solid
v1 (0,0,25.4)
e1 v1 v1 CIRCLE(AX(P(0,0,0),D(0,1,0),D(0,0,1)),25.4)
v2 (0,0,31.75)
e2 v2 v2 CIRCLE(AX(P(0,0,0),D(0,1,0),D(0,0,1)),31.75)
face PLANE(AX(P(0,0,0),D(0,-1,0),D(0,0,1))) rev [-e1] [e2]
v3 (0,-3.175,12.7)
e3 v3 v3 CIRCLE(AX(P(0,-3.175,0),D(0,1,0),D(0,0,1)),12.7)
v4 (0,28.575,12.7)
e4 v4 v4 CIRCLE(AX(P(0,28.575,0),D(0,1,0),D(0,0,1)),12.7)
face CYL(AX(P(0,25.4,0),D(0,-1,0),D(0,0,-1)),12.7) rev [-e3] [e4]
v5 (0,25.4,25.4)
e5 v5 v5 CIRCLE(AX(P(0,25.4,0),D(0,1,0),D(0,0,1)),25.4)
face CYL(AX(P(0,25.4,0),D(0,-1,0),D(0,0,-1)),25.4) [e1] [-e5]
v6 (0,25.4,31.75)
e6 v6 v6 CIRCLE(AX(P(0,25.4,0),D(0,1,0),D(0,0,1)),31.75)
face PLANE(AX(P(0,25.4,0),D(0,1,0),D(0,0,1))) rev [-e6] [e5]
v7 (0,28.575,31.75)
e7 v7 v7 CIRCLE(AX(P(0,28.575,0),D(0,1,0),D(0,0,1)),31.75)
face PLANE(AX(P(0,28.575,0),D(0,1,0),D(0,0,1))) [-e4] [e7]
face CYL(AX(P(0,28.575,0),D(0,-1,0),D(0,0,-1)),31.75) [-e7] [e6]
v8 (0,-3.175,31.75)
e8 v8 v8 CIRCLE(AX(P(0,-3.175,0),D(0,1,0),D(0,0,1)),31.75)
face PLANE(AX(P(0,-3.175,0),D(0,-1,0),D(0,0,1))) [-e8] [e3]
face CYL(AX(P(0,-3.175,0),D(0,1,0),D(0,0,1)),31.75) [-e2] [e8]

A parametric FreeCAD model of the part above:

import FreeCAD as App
import Part
import Sketcher
from FreeCAD import Vector
Q = App.Units.Quantity

doc = App.newDocument("Part")
body = doc.addObject("PartDesign::Body", "Body")

# Sketch on XZ plane
sketch1 = body.newObject("Sketcher::SketchObject", "Sketch")
sketch1.AttachmentSupport = (doc.getObject("XZ_Plane"), [""])
sketch1.MapMode = "FlatFace"
sketch1.addGeometry([
    Part.Circle(Vector(0, 0, 0), Vector(0, 0, 1), 25),
    Part.Circle(Vector(0, 0, 0), Vector(0, 0, 1), 13),
], False)
sketch1.addConstraint([
    Sketcher.Constraint("Coincident", 0, 3, -1, 1),
    Sketcher.Constraint("Coincident", 1, 3, -1, 1),
    Sketcher.Constraint("Diameter", 0, Q("2 in")),
    Sketcher.Constraint("Diameter", 1, Q("1 in")),
])
pad1 = body.newObject("PartDesign::Pad", "Pad")
pad1.Profile = sketch1
pad1.Length = Q("1 in")
pad1.Reversed = True

# Sketch on XZ plane
sketch2 = body.newObject("Sketcher::SketchObject", "Sketch001")
sketch2.AttachmentSupport = (doc.getObject("XZ_Plane"), [""])
sketch2.MapMode = "FlatFace"
sketch2.AttachmentOffset = App.Placement(Vector(0, 0, -1 * 25.4), App.Rotation())
sketch2.addGeometry([
    Part.Circle(Vector(0, 0, 0), Vector(0, 0, 1), 32),
    Part.Circle(Vector(0, 0, 0), Vector(0, 0, 1), 13),
], False)
sketch2.addConstraint([
    Sketcher.Constraint("Coincident", 0, 3, -1, 1),
    Sketcher.Constraint("Coincident", 1, 3, -1, 1),
    Sketcher.Constraint("Diameter", 1, Q("1 in")),
    Sketcher.Constraint("Diameter", 0, Q("2.5 in")),
])
pad2 = body.newObject("PartDesign::Pad", "Pad001")
pad2.Profile = sketch2
pad2.Length = Q("0.125 in")
pad2.Reversed = True
doc.recompute()

datumplane = body.newObject("PartDesign::Plane", "DatumPlane")
datumplane.AttachmentSupport = (doc.getObject("XZ_Plane"), [""])
datumplane.MapMode = "FlatFace"
datumplane.AttachmentOffset = App.Placement(Vector(0, 0, -0.5 * 25.4), App.Rotation())
mirrored = body.newObject("PartDesign::Mirrored", "Mirrored")
mirrored.Originals = [pad2]
mirrored.MirrorPlane = (datumplane, [""])
body.Tip = mirrored

doc.recompute()
